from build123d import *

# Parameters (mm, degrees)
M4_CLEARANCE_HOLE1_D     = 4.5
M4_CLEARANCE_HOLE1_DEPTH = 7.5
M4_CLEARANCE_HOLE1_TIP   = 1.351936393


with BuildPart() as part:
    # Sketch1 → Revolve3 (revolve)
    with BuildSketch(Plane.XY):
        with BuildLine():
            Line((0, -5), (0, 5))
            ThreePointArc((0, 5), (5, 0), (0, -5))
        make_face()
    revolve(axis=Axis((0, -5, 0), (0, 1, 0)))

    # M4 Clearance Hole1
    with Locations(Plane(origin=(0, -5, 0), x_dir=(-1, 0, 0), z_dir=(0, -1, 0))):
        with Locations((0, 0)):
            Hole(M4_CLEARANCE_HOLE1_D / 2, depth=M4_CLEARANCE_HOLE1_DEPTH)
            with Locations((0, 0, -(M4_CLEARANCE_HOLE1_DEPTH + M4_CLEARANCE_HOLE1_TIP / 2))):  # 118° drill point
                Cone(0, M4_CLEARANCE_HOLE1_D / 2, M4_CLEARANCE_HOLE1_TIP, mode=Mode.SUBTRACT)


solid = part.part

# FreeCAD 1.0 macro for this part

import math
import FreeCAD as App
import Part
import Sketcher
Q = App.Units.Quantity

doc = App.newDocument("Part")
body = doc.addObject("PartDesign::Body", "Body")

sketch1 = body.newObject("Sketcher::SketchObject", "Sketch")
sketch1.AttachmentSupport = (doc.getObject("XY_Plane"), [""])
sketch1.MapMode = "FlatFace"
sketch1.addGeometry([
    Part.LineSegment(App.Vector(0, 5, 0), App.Vector(0, -5, 0)),
    Part.ArcOfCircle(Part.Circle(App.Vector(0, 0, 0), App.Vector(0, 0, 1), 5), math.radians(-90), math.radians(90)),
], False)
sketch1.addConstraint([
    Sketcher.Constraint("Coincident", 0, 1, 1, 2),
    Sketcher.Constraint("Coincident", 1, 1, 0, 2),
    Sketcher.Constraint("Vertical", 0),
    Sketcher.Constraint("Coincident", 1, 3, -1, 1),
    Sketcher.Constraint("PointOnObject", 0, 1, -2),
    Sketcher.Constraint("Radius", 1, Q("5 mm")),
])
revolution = body.newObject("PartDesign::Revolution", "Revolution")
revolution.Profile = sketch1
revolution.ReferenceAxis = (sketch1, ["V_Axis"])
revolution.Angle = 360

sketch2 = body.newObject("Sketcher::SketchObject", "Sketch001")
sketch2.AttachmentSupport = (doc.getObject("XZ_Plane"), [""])
sketch2.MapMode = "FlatFace"
sketch2.AttachmentOffset = App.Placement(App.Vector(0, 0, 5), App.Rotation())
sketch2.addGeometry(Part.Circle(App.Vector(0, 0, 0), App.Vector(0, 0, 1), 2.2), False)
sketch2.addConstraint([
    Sketcher.Constraint("Coincident", 0, 3, -1, 1),
    Sketcher.Constraint("Diameter", 0, Q("4.5 mm")),
])
doc.recompute()
hole = body.newObject("PartDesign::Hole", "Hole")
hole.Profile = sketch2
hole.ThreadType = "None"
hole.Diameter = 4.5
hole.DepthType = "Dimension"
hole.Depth = 7.5
hole.DrillPoint = "Angled"
hole.DrillPointAngle = 118

doc.recompute()
